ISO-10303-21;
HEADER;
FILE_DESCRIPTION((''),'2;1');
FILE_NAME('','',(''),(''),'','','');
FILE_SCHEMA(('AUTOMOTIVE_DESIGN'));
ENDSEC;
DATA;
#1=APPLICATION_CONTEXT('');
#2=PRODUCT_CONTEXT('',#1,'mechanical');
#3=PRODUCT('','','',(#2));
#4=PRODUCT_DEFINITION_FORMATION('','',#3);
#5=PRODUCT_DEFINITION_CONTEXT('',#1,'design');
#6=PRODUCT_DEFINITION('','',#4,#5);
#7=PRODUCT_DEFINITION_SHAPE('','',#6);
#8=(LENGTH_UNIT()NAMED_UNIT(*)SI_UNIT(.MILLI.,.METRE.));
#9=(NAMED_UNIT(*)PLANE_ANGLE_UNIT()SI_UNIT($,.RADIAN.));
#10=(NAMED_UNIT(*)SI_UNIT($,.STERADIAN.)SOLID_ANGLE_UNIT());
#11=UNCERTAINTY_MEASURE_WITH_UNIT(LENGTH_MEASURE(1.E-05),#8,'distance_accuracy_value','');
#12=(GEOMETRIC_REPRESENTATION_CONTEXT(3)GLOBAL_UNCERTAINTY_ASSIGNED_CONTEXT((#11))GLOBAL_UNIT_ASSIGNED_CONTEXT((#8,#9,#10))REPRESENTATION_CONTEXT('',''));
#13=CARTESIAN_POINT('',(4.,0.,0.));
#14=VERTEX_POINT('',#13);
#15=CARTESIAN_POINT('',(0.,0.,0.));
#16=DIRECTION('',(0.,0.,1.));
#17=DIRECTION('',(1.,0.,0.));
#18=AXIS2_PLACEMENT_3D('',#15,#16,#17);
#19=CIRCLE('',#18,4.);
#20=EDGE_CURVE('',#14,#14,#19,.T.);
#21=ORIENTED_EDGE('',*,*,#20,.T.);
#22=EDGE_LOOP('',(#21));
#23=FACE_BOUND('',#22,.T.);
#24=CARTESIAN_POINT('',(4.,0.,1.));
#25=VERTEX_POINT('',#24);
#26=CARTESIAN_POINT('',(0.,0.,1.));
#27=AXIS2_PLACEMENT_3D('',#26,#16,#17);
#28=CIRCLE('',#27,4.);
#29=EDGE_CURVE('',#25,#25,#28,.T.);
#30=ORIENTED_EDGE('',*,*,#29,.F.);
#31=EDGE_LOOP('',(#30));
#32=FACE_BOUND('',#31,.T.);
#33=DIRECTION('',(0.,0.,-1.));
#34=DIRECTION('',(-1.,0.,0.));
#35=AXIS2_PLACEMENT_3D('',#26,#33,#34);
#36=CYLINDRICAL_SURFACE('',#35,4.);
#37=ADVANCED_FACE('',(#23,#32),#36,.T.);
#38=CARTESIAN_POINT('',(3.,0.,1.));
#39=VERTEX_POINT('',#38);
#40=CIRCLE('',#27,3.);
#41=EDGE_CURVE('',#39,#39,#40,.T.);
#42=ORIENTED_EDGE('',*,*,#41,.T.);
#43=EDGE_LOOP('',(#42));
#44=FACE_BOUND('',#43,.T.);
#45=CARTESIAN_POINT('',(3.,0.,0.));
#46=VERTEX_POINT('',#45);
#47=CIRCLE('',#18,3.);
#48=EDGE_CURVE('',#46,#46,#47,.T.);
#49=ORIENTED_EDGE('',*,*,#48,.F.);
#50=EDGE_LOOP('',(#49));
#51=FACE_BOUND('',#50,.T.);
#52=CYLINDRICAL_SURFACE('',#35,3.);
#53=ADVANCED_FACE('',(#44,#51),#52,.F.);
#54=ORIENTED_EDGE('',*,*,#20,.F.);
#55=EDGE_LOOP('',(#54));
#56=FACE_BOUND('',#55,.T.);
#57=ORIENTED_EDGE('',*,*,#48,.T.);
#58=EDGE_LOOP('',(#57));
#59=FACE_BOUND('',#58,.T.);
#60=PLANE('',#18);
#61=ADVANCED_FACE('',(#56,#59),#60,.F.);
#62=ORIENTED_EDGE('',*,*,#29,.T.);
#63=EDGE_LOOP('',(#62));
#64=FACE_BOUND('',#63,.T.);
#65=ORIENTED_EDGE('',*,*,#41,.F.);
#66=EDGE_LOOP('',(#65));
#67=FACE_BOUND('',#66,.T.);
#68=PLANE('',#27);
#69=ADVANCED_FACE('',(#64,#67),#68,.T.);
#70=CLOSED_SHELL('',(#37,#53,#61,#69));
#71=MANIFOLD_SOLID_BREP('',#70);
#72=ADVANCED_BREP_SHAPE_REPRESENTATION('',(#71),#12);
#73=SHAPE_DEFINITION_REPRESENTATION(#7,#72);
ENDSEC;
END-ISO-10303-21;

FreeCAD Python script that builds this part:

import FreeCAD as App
import Part
import Sketcher

V = App.Vector
Q = App.Units.Quantity

doc = App.newDocument("Part")
params = doc.addObject("Spreadsheet::Sheet", "Params")
for row, (alias, value) in enumerate([
    ("sketch1_diameter", "8 mm"),
    ("sketch1_diameter2", "6 mm"),
    ("pad1_length", "1 mm"),
], start=1):
    params.set(f"A{row}", alias)
    params.set(f"B{row}", "=" + value)
    params.setAlias(f"B{row}", alias)

body = doc.addObject("PartDesign::Body", "Body")

# Sketch on XY plane
sketch1 = doc.addObject("Sketcher::SketchObject", "Sketch")
body.addObject(sketch1)
sketch1.AttachmentSupport = (doc.XY_Plane, [""])
sketch1.MapMode = "FlatFace"
sketch1.addGeometry(Part.Circle(V(0, 0, 0), V(0, 0, 1), 4), False)
sketch1.addGeometry(Part.Circle(V(0, 0, 0), V(0, 0, 1), 3), False)
sketch1.addConstraint(Sketcher.Constraint("Coincident", 0, 3, -1, 1))
sketch1.addConstraint(Sketcher.Constraint("Coincident", 1, 3, -1, 1))
sketch1.addConstraint(Sketcher.Constraint("Diameter", 0, Q("8 mm")))
sketch1.addConstraint(Sketcher.Constraint("Diameter", 1, Q("6 mm")))
sketch1.setExpression("Constraints[2]", "Params.sketch1_diameter")
sketch1.setExpression("Constraints[3]", "Params.sketch1_diameter2")
pad1 = doc.addObject("PartDesign::Pad", "Pad")
body.addObject(pad1)
pad1.Profile = sketch1
pad1.setExpression("Length", "Params.pad1_length")

doc.recompute()
